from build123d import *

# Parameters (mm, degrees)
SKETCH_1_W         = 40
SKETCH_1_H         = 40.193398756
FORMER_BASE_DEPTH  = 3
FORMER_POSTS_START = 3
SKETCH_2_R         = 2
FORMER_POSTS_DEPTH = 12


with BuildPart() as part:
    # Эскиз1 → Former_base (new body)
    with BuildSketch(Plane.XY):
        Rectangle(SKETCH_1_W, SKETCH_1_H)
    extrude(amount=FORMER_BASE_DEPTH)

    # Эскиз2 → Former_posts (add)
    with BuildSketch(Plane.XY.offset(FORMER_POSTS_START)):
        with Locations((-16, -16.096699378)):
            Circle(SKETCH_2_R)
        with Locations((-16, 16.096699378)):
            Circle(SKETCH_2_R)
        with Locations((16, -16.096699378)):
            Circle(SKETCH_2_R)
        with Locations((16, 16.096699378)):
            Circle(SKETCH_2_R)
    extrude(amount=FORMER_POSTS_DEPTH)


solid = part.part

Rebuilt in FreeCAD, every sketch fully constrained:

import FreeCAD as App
import Part
import Sketcher
from FreeCAD import Vector
Q = App.Units.Quantity

doc = App.newDocument("Part")
body = doc.addObject("PartDesign::Body", "Body")

# Sketch on XY plane
sketch1 = body.newObject("Sketcher::SketchObject", "Sketch")
sketch1.AttachmentSupport = (doc.getObject("XY_Plane"), [""])
sketch1.MapMode = "FlatFace"
sketch1.addGeometry(Part.LineSegment(Vector(-20, 20.096699, 0), Vector(-20, -20.096699, 0)), False)
sketch1.addGeometry(Part.LineSegment(Vector(-20, -20.096699, 0), Vector(20, -20.096699, 0)), False)
sketch1.addGeometry(Part.LineSegment(Vector(20, -20.096699, 0), Vector(20, 20.096699, 0)), False)
sketch1.addGeometry(Part.LineSegment(Vector(20, 20.096699, 0), Vector(-20, 20.096699, 0)), False)
sketch1.addConstraint(Sketcher.Constraint("Coincident", 0, 2, 1, 1))
sketch1.addConstraint(Sketcher.Constraint("Coincident", 1, 2, 2, 1))
sketch1.addConstraint(Sketcher.Constraint("Coincident", 2, 2, 3, 1))
sketch1.addConstraint(Sketcher.Constraint("Coincident", 3, 2, 0, 1))
sketch1.addConstraint(Sketcher.Constraint("Vertical", 0))
sketch1.addConstraint(Sketcher.Constraint("Horizontal", 1))
sketch1.addConstraint(Sketcher.Constraint("Vertical", 2))
sketch1.addConstraint(Sketcher.Constraint("Horizontal", 3))
sketch1.addConstraint(Sketcher.Constraint("Symmetric", 0, 2, 2, 2, -1, 1))
sketch1.addConstraint(Sketcher.Constraint("DistanceX", 1, 1, 1, 2, Q("40 mm")))
sketch1.addConstraint(Sketcher.Constraint("DistanceY", 0, 2, 0, 1, Q("40.193399 mm")))
pad1 = body.newObject("PartDesign::Pad", "Pad")
pad1.Profile = sketch1
pad1.Length = 3

# Sketch on XY plane
sketch2 = body.newObject("Sketcher::SketchObject", "Sketch001")
sketch2.AttachmentSupport = (doc.getObject("XY_Plane"), [""])
sketch2.MapMode = "FlatFace"
sketch2.AttachmentOffset = App.Placement(Vector(0, 0, 3), App.Rotation())
sketch2.addGeometry(Part.Circle(Vector(-16, -16.096699, 0), Vector(0, 0, 1), 2), False)
sketch2.addGeometry(Part.Circle(Vector(-16, 16.096699, 0), Vector(0, 0, 1), 2), False)
sketch2.addGeometry(Part.Circle(Vector(16, -16.096699, 0), Vector(0, 0, 1), 2), False)
sketch2.addGeometry(Part.Circle(Vector(16, 16.096699, 0), Vector(0, 0, 1), 2), False)
sketch2.addConstraint(Sketcher.Constraint("Equal", 0, 1))
sketch2.addConstraint(Sketcher.Constraint("Equal", 1, 2))
sketch2.addConstraint(Sketcher.Constraint("Equal", 2, 3))
sketch2.addConstraint(Sketcher.Constraint("Symmetric", 1, 3, 2, 3, -1, 1))
sketch2.addConstraint(Sketcher.Constraint("Symmetric", 0, 3, 3, 3, -1, 1))
sketch2.addConstraint(Sketcher.Constraint("Symmetric", 0, 3, 2, 3, -2))
sketch2.addConstraint(Sketcher.Constraint("Diameter", 0, Q("4 mm")))
sketch2.addConstraint(Sketcher.Constraint("DistanceX", 0, 3, -1, 1, Q("16 mm")))
sketch2.addConstraint(Sketcher.Constraint("DistanceY", 0, 3, -1, 1, Q("16.096699 mm")))
pad2 = body.newObject("PartDesign::Pad", "Pad001")
pad2.Profile = sketch2
pad2.Length = 12

doc.recompute()
